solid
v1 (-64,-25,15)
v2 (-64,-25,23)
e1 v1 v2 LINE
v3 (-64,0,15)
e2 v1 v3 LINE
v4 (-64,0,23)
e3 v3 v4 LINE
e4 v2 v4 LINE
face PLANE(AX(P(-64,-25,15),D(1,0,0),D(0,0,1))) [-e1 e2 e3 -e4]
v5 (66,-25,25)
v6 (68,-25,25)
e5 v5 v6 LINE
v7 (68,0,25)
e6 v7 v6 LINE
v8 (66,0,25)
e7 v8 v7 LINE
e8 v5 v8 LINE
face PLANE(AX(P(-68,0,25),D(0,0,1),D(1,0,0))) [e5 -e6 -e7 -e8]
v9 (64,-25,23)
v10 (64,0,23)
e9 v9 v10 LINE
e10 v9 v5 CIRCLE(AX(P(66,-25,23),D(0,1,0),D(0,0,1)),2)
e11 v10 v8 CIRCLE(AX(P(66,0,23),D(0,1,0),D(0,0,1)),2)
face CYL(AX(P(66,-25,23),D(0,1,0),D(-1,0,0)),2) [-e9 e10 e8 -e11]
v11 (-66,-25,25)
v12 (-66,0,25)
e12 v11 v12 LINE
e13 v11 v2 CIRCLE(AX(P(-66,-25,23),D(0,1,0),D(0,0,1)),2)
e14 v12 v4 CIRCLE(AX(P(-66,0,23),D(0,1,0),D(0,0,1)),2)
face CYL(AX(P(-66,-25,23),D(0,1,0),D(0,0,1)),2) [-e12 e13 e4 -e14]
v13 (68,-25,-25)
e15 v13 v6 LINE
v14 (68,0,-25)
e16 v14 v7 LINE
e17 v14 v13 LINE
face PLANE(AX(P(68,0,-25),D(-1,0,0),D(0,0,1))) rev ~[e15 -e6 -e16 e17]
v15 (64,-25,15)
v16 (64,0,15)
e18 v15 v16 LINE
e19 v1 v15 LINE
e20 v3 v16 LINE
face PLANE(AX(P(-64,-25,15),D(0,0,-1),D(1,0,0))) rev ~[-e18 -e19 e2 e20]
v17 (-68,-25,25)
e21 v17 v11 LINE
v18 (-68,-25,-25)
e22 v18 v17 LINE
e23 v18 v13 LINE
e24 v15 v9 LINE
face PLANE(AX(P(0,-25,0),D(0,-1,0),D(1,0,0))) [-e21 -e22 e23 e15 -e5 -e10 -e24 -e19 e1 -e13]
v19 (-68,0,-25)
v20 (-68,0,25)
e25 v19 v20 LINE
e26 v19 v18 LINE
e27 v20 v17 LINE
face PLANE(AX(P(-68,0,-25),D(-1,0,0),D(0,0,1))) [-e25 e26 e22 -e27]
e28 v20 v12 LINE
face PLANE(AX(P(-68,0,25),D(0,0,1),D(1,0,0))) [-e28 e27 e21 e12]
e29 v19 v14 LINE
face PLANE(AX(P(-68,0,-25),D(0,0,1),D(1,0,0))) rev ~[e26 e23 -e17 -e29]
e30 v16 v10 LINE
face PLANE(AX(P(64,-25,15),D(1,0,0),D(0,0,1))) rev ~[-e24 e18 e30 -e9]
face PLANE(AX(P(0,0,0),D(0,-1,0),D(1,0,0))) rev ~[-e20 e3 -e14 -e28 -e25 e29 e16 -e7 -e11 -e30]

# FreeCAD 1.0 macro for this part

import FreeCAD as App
import Part
import Sketcher
Q = App.Units.Quantity


def edges_at(feature, points):
    """Names of the edges that pass closest to the given points."""
    edges = feature.Shape.Edges
    near = lambda p: min(range(len(edges)), key=lambda i: edges[i].distToShape(Part.Vertex(*p))[0])
    return sorted({f"Edge{near(p) + 1}" for p in points})


def add_polygon(sketch, points):
    """Adds a closed chain of lines whose ends are joined by coincident constraints."""
    first, n = sketch.GeometryCount, len(points)
    for a, b in zip(points, points[1:] + points[:1]):
        sketch.addGeometry(Part.LineSegment(App.Vector(*a, 0), App.Vector(*b, 0)), False)
    for i in range(n):
        sketch.addConstraint(Sketcher.Constraint("Coincident", first + i, 2, first + (i + 1) % n, 1))

doc = App.newDocument("Part")
body = doc.addObject("PartDesign::Body", "Body")

# Sketch on XZ plane
sketch1 = doc.addObject("Sketcher::SketchObject", "Sketch")
body.addObject(sketch1)
sketch1.AttachmentSupport = (doc.XZ_Plane, [""])
sketch1.MapMode = "FlatFace"
add_polygon(sketch1, [(-68, 25), (-68, -25), (68, -25), (68, 25)])  # lines 0-3
sketch1.addConstraint([
    Sketcher.Constraint("Vertical", 0),
    Sketcher.Constraint("Horizontal", 1),
    Sketcher.Constraint("Vertical", 2),
    Sketcher.Constraint("Horizontal", 3),
    Sketcher.Constraint("Symmetric", 0, 2, 2, 2, -1, 1),
    Sketcher.Constraint("DistanceX", 1, 1, 1, 2, Q("136 mm")),
    Sketcher.Constraint("DistanceY", 0, 2, 0, 1, Q("50 mm")),
])
pad1 = doc.addObject("PartDesign::Pad", "Pad")
body.addObject(pad1)
pad1.Profile = sketch1
pad1.Length = 25

# Sketch on XZ plane
sketch2 = doc.addObject("Sketcher::SketchObject", "Sketch001")
body.addObject(sketch2)
sketch2.AttachmentSupport = (doc.XZ_Plane, [""])
sketch2.MapMode = "FlatFace"
sketch2.AttachmentOffset = App.Placement(App.Vector(0, 0, 25), App.Rotation())
add_polygon(sketch2, [(-64, 25), (-64, 15), (64, 15), (64, 25)])  # lines 0-3
sketch2.addConstraint([
    Sketcher.Constraint("Vertical", 0),
    Sketcher.Constraint("Horizontal", 1),
    Sketcher.Constraint("Vertical", 2),
    Sketcher.Constraint("Horizontal", 3),
    Sketcher.Constraint("DistanceX", 1, 1, 1, 2, Q("128 mm")),
    Sketcher.Constraint("DistanceY", 0, 2, 0, 1, Q("10 mm")),
    Sketcher.Constraint("DistanceX", 0, 2, -1, 1, Q("64 mm")),
    Sketcher.Constraint("DistanceY", -1, 1, 0, 2, Q("15 mm")),
])
pocket1 = doc.addObject("PartDesign::Pocket", "Pocket")
body.addObject(pocket1)
pocket1.Profile = sketch2
pocket1.Type = "ThroughAll"
doc.recompute()

fillet = doc.addObject("PartDesign::Fillet", "Fillet")
body.addObject(fillet)
fillet.Base = (pocket1, edges_at(pocket1, [(-64, -12.5, 25), (64, -12.5, 25)]))
fillet.Radius = 2

doc.recompute()
